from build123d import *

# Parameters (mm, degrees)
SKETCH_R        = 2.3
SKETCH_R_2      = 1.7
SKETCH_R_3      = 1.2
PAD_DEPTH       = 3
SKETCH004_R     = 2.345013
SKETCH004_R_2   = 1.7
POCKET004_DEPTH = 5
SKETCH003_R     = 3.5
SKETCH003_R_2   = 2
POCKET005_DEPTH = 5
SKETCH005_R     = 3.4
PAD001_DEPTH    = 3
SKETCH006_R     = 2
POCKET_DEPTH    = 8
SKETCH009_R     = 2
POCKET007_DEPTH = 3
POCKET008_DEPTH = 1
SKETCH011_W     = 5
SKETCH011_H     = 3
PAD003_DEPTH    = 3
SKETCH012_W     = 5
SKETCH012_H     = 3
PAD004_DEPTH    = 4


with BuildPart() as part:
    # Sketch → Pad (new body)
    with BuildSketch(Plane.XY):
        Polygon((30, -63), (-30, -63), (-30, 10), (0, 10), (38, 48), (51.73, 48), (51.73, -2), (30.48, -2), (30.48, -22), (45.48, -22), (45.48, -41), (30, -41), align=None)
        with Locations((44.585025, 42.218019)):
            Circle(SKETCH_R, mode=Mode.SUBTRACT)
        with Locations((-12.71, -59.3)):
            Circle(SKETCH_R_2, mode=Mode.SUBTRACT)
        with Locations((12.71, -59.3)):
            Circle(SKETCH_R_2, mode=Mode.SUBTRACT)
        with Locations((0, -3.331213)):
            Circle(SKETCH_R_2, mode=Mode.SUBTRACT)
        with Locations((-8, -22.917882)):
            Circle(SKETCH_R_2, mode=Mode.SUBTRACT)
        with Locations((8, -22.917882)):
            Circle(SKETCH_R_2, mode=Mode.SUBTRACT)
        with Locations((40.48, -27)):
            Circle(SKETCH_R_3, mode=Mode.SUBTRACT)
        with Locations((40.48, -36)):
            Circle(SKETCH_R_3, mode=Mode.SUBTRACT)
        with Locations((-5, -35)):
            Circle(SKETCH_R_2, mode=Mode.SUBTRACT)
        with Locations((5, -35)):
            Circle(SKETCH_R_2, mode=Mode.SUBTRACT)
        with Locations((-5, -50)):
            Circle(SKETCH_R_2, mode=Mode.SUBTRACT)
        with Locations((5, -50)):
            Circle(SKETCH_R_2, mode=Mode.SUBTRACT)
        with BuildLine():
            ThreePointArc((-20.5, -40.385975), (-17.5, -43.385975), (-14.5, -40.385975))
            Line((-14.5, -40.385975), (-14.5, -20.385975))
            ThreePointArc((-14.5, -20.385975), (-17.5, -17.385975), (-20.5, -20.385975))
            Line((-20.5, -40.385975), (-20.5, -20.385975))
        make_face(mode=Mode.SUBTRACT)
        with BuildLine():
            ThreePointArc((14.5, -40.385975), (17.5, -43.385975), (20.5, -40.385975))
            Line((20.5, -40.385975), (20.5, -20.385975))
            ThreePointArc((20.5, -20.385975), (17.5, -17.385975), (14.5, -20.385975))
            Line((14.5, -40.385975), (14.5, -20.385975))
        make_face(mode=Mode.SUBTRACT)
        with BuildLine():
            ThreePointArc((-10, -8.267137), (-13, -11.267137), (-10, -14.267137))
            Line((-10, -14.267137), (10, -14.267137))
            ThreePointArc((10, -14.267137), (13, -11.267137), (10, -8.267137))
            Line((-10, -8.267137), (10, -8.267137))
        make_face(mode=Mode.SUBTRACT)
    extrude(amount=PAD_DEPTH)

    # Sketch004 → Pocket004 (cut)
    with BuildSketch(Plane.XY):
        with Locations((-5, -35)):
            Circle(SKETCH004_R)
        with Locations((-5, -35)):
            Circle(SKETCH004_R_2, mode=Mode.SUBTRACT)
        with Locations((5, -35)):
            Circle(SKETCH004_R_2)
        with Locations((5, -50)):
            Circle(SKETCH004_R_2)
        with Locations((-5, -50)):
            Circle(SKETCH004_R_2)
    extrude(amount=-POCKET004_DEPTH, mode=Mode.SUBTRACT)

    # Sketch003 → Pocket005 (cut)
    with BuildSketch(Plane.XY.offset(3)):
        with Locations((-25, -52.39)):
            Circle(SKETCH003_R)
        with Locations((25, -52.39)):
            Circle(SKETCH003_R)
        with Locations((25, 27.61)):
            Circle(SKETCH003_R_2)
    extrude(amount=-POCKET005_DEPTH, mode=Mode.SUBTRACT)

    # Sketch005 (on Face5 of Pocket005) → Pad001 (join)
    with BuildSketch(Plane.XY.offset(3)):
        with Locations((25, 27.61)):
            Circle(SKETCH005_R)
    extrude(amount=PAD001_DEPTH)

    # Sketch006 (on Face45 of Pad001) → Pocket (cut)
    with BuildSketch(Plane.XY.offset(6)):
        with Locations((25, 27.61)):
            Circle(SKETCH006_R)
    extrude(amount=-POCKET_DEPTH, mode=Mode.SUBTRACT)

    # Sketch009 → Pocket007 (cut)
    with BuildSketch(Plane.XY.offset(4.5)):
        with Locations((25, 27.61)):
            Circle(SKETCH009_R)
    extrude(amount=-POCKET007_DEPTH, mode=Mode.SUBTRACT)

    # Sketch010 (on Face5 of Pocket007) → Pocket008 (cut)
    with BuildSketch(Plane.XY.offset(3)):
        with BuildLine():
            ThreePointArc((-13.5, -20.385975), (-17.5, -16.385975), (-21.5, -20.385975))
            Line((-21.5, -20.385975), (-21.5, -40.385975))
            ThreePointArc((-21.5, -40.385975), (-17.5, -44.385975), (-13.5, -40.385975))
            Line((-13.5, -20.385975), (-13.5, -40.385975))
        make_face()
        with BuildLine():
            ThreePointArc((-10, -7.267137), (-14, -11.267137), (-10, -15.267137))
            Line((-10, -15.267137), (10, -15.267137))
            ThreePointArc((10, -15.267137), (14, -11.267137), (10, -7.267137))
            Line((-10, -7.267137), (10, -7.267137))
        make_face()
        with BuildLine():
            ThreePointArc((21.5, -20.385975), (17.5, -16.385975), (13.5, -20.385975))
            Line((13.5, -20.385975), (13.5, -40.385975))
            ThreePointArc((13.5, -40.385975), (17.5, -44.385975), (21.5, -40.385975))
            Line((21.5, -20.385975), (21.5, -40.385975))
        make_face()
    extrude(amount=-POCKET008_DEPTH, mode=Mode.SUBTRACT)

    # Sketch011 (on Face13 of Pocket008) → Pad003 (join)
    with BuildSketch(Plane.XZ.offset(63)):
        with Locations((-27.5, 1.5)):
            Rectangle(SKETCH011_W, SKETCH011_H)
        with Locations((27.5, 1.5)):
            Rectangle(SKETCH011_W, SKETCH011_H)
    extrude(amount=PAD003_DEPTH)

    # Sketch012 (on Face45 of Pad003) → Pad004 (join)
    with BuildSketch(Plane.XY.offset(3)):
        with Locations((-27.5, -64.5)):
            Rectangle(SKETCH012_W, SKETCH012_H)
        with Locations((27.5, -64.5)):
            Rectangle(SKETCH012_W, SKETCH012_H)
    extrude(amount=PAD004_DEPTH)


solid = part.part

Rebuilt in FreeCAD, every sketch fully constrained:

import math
import FreeCAD as App
import Part
import Sketcher
from FreeCAD import Vector
Q = App.Units.Quantity

doc = App.newDocument("Part")
body = doc.addObject("PartDesign::Body", "Body")

# Sketch on XY plane
sketch1 = body.newObject("Sketcher::SketchObject", "Sketch")
sketch1.AttachmentSupport = (doc.getObject("XY_Plane"), [""])
sketch1.MapMode = "FlatFace"
sketch1.addGeometry([
    Part.LineSegment(Vector(-30, -63, 0), Vector(30, -63, 0)),  # 0
    Part.LineSegment(Vector(30, -63, 0), Vector(30, -41, 0)),  # 1
    Part.LineSegment(Vector(30, -41, 0), Vector(45.5, -41, 0)),  # 2
    Part.LineSegment(Vector(45.5, -41, 0), Vector(45.5, -22, 0)),  # 3
    Part.LineSegment(Vector(45.5, -22, 0), Vector(30.5, -22, 0)),  # 4
    Part.LineSegment(Vector(30.5, -22, 0), Vector(30.5, -2, 0)),  # 5
    Part.LineSegment(Vector(30.5, -2, 0), Vector(51.7, -2, 0)),  # 6
    Part.LineSegment(Vector(51.7, -2, 0), Vector(51.7, 48, 0)),  # 7
    Part.LineSegment(Vector(51.7, 48, 0), Vector(38, 48, 0)),  # 8
    Part.LineSegment(Vector(38, 48, 0), Vector(0, 10, 0)),  # 9
    Part.LineSegment(Vector(0, 10, 0), Vector(-30, 10, 0)),  # 10
    Part.LineSegment(Vector(-30, 10, 0), Vector(-30, -63, 0)),  # 11
    Part.Circle(Vector(40.5, -36, 0), Vector(0, 0, 1), 1.2),  # 12
    Part.Circle(Vector(40.5, -27, 0), Vector(0, 0, 1), 1.2),  # 13
    Part.LineSegment(Vector(14.5, -40.4, 0), Vector(14.5, -20.4, 0)),  # 14
    Part.ArcOfCircle(Part.Circle(Vector(17.5, -20.4, 0), Vector(0, 0, 1), 3), math.radians(0), math.radians(180)),  # 15
    Part.LineSegment(Vector(20.5, -20.4, 0), Vector(20.5, -40.4, 0)),  # 16
    Part.ArcOfCircle(Part.Circle(Vector(17.5, -40.4, 0), Vector(0, 0, 1), 3), math.radians(180), math.radians(360)),  # 17
    Part.Circle(Vector(12.7, -59.3, 0), Vector(0, 0, 1), 1.7),  # 18
    Part.Circle(Vector(5, -50, 0), Vector(0, 0, 1), 1.7),  # 19
    Part.Circle(Vector(5, -35, 0), Vector(0, 0, 1), 1.7),  # 20
    Part.Circle(Vector(-5, -50, 0), Vector(0, 0, 1), 1.7),  # 21
    Part.Circle(Vector(-12.7, -59.3, 0), Vector(0, 0, 1), 1.7),  # 22
    Part.Circle(Vector(-5, -35, 0), Vector(0, 0, 1), 1.7),  # 23
    Part.Circle(Vector(8, -22.9, 0), Vector(0, 0, 1), 1.7),  # 24
    Part.LineSegment(Vector(-10, -8.3, 0), Vector(10, -8.3, 0)),  # 25
    Part.ArcOfCircle(Part.Circle(Vector(10, -11.3, 0), Vector(0, 0, 1), 3), math.radians(-90), math.radians(90)),  # 26
    Part.LineSegment(Vector(10, -14.3, 0), Vector(-10, -14.3, 0)),  # 27
    Part.ArcOfCircle(Part.Circle(Vector(-10, -11.3, 0), Vector(0, 0, 1), 3), math.radians(90), math.radians(270)),  # 28
    Part.Circle(Vector(-8, -22.9, 0), Vector(0, 0, 1), 1.7),  # 29
    Part.LineSegment(Vector(-20.5, -40.4, 0), Vector(-20.5, -20.4, 0)),  # 30
    Part.ArcOfCircle(Part.Circle(Vector(-17.5, -20.4, 0), Vector(0, 0, 1), 3), math.radians(0), math.radians(180)),  # 31
    Part.LineSegment(Vector(-14.5, -20.4, 0), Vector(-14.5, -40.4, 0)),  # 32
    Part.ArcOfCircle(Part.Circle(Vector(-17.5, -40.4, 0), Vector(0, 0, 1), 3), math.radians(180), math.radians(360)),  # 33
    Part.Circle(Vector(44.6, 42.2, 0), Vector(0, 0, 1), 2.3),  # 34
    Part.Circle(Vector(0, -3.3, 0), Vector(0, 0, 1), 1.7),  # 35
], False)
sketch1.addConstraint([
    Sketcher.Constraint("Coincident", 0, 2, 1, 1),
    Sketcher.Constraint("Coincident", 1, 2, 2, 1),
    Sketcher.Constraint("Coincident", 2, 2, 3, 1),
    Sketcher.Constraint("Coincident", 3, 2, 4, 1),
    Sketcher.Constraint("Coincident", 4, 2, 5, 1),
    Sketcher.Constraint("Coincident", 5, 2, 6, 1),
    Sketcher.Constraint("Coincident", 6, 2, 7, 1),
    Sketcher.Constraint("Coincident", 7, 2, 8, 1),
    Sketcher.Constraint("Coincident", 8, 2, 9, 1),
    Sketcher.Constraint("Coincident", 9, 2, 10, 1),
    Sketcher.Constraint("Coincident", 10, 2, 11, 1),
    Sketcher.Constraint("Coincident", 11, 2, 0, 1),
    Sketcher.Constraint("Tangent", 14, 2, 15, 2),
    Sketcher.Constraint("Tangent", 15, 1, 16, 1),
    Sketcher.Constraint("Tangent", 16, 2, 17, 2),
    Sketcher.Constraint("Tangent", 17, 1, 14, 1),
    Sketcher.Constraint("Tangent", 25, 2, 26, 2),
    Sketcher.Constraint("Tangent", 26, 1, 27, 1),
    Sketcher.Constraint("Tangent", 27, 2, 28, 2),
    Sketcher.Constraint("Tangent", 28, 1, 25, 1),
    Sketcher.Constraint("Tangent", 30, 2, 31, 2),
    Sketcher.Constraint("Tangent", 31, 1, 32, 1),
    Sketcher.Constraint("Tangent", 32, 2, 33, 2),
    Sketcher.Constraint("Tangent", 33, 1, 30, 1),
    Sketcher.Constraint("Horizontal", 0),
    Sketcher.Constraint("Vertical", 1),
    Sketcher.Constraint("Horizontal", 2),
    Sketcher.Constraint("Vertical", 3),
    Sketcher.Constraint("Horizontal", 4),
    Sketcher.Constraint("Vertical", 5),
    Sketcher.Constraint("Horizontal", 6),
    Sketcher.Constraint("Vertical", 7),
    Sketcher.Constraint("Horizontal", 8),
    Sketcher.Constraint("Horizontal", 10),
    Sketcher.Constraint("Vertical", 11),
    Sketcher.Constraint("Vertical", 14),
    Sketcher.Constraint("Vertical", 16),
    Sketcher.Constraint("Horizontal", 25),
    Sketcher.Constraint("Horizontal", 27),
    Sketcher.Constraint("Vertical", 30),
    Sketcher.Constraint("Vertical", 32),
    Sketcher.Constraint("Equal", 12, 13),
    Sketcher.Constraint("Equal", 18, 19),
    Sketcher.Constraint("Equal", 19, 20),
    Sketcher.Constraint("Equal", 20, 21),
    Sketcher.Constraint("Equal", 21, 22),
    Sketcher.Constraint("Equal", 22, 23),
    Sketcher.Constraint("Equal", 23, 24),
    Sketcher.Constraint("Equal", 17, 26),
    Sketcher.Constraint("Equal", 24, 29),
    Sketcher.Constraint("Equal", 28, 31),
    Sketcher.Constraint("Equal", 29, 35),
    Sketcher.Constraint("Symmetric", 19, 3, 21, 3, -2),
    Sketcher.Constraint("Symmetric", 18, 3, 22, 3, -2),
    Sketcher.Constraint("Symmetric", 20, 3, 23, 3, -2),
    Sketcher.Constraint("Symmetric", 24, 3, 29, 3, -2),
    Sketcher.Constraint("Symmetric", 15, 3, 31, 3, -2),
    Sketcher.Constraint("PointOnObject", 35, 3, -2),
    Sketcher.Constraint("PointOnObject", 9, 2, -2),
    Sketcher.Constraint("Horizontal", 17, 3, 33, 3),
    Sketcher.Constraint("Vertical", 12, 3, 13, 3),
    Sketcher.Constraint("Vertical", 19, 3, 20, 3),
    Sketcher.Constraint("Equal", 27, 5),
    Sketcher.Constraint("Equal", 5, 14),
    Sketcher.Constraint("Radius", 15, 3.0),
    Sketcher.Constraint("Diameter", 12, 2.4),
    Sketcher.Constraint("Diameter", 18, 3.4),
    Sketcher.Constraint("Diameter", 34, 4.6),
    Sketcher.Constraint("DistanceX", 0, 1, 0, 2, 60.0),
    Sketcher.Constraint("DistanceX", 4, 2, 4, 1, 15.0),
    Sketcher.Constraint("DistanceX", 10, 2, 10, 1, 30.0),
    Sketcher.Constraint("DistanceX", 25, 1, 25, 2, 20.0),
    Sketcher.Constraint("DistanceY", 1, 1, 1, 2, 22.0),
    Sketcher.Constraint("DistanceY", 3, 1, 3, 2, 19.0),
    Sketcher.Constraint("DistanceY", 7, 1, 7, 2, 50.0),
    Sketcher.Constraint("DistanceY", 11, 2, 11, 1, 73.0),
    Sketcher.Constraint("Angle", 9, Q("-135 deg")),
    Sketcher.Constraint("DistanceY", 12, 3, -1, 1, 36.0),
    Sketcher.Constraint("DistanceY", 13, 3, -1, 1, 27.0),
    Sketcher.Constraint("DistanceX", -1, 1, 19, 3, 5.0),
    Sketcher.Constraint("DistanceY", 19, 3, -1, 1, 50.0),
    Sketcher.Constraint("DistanceY", 20, 3, -1, 1, 35.0),
    Sketcher.Constraint("DistanceX", -1, 1, 24, 3, 8.0),
    Sketcher.Constraint("DistanceX", -1, 1, 26, 3, 10.0),
    Sketcher.Constraint("DistanceY", 0, 2, -1, 1, 63.0),
    Sketcher.Constraint("DistanceX", 12, 3, 2, 2, 5.0),
    Sketcher.Constraint("DistanceX", 2, 1, 2, 2, 15.48),
    Sketcher.Constraint("DistanceX", 6, 1, 6, 2, 21.25),
    Sketcher.Constraint("DistanceX", -1, 1, 15, 3, 17.5),
    Sketcher.Constraint("DistanceY", 18, 3, -1, 1, 59.3),
    Sketcher.Constraint("DistanceX", -1, 1, 18, 3, 12.71),
    Sketcher.Constraint("DistanceY", 24, 3, 34, 3, 65.135901),
    Sketcher.Constraint("DistanceY", 24, 3, -1, 1, 22.917882),
    Sketcher.Constraint("DistanceY", 17, 3, 26, 3, 29.118838),
    Sketcher.Constraint("DistanceY", 24, 3, 35, 3, 19.586669),
    Sketcher.Constraint("DistanceY", 15, 3, 35, 3, 17.054762),
    Sketcher.Constraint("DistanceX", -1, 1, 34, 3, 44.585025),
])
pad1 = body.newObject("PartDesign::Pad", "Pad")
pad1.Profile = sketch1
pad1.Length = 3

# Sketch on XY plane
sketch2 = body.newObject("Sketcher::SketchObject", "Sketch001")
sketch2.AttachmentSupport = (doc.getObject("XY_Plane"), [""])
sketch2.MapMode = "FlatFace"
sketch2.addGeometry([
    Part.Circle(Vector(-5, -35, 0), Vector(0, 0, 1), 2.3),  # 0
    Part.Circle(Vector(-5, -35, 0), Vector(0, 0, 1), 1.7),  # 1
    Part.Circle(Vector(5, -35, 0), Vector(0, 0, 1), 1.7),  # 2
    Part.Circle(Vector(5, -50, 0), Vector(0, 0, 1), 1.7),  # 3
    Part.Circle(Vector(-5, -50, 0), Vector(0, 0, 1), 1.7),  # 4
], False)
sketch2.addConstraint([
    Sketcher.Constraint("Coincident", 1, 3, 0, 3),
    Sketcher.Constraint("Equal", 1, 2),
    Sketcher.Constraint("Equal", 2, 3),
    Sketcher.Constraint("Equal", 3, 4),
    Sketcher.Constraint("Symmetric", 0, 3, 2, 3, -2),
    Sketcher.Constraint("Symmetric", 3, 3, 4, 3, -2),
    Sketcher.Constraint("Vertical", 2, 3, 3, 3),
    Sketcher.Constraint("Diameter", 1, 3.4),
    Sketcher.Constraint("DistanceX", 0, 3, -1, 1, 5.0),
    Sketcher.Constraint("DistanceY", 0, 3, -1, 1, 35.0),
    Sketcher.Constraint("DistanceY", 3, 3, -1, 1, 50.0),
    Sketcher.Constraint("Diameter", 0, 4.690026),
])
pocket1 = body.newObject("PartDesign::Pocket", "Pocket")
pocket1.Profile = sketch2
pocket1.Length = 5

# Sketch on XY plane
sketch3 = body.newObject("Sketcher::SketchObject", "Sketch002")
sketch3.AttachmentSupport = (doc.getObject("XY_Plane"), [""])
sketch3.MapMode = "FlatFace"
sketch3.AttachmentOffset = App.Placement(Vector(0, 0, 3), App.Rotation())
sketch3.addGeometry([
    Part.Circle(Vector(-25, -52.4, 0), Vector(0, 0, 1), 3.5),
    Part.Circle(Vector(25, -52.4, 0), Vector(0, 0, 1), 3.5),
    Part.Circle(Vector(25, 27.6, 0), Vector(0, 0, 1), 2),
], False)
sketch3.addConstraint([
    Sketcher.Constraint("Equal", 0, 1),
    Sketcher.Constraint("Symmetric", 0, 3, 1, 3, -2),
    Sketcher.Constraint("Vertical", 1, 3, 2, 3),
    Sketcher.Constraint("Diameter", 0, 7.0),
    Sketcher.Constraint("Diameter", 2, 4.0),
    Sketcher.Constraint("DistanceX", 0, 3, -1, 1, 25.0),
    Sketcher.Constraint("DistanceY", 1, 3, 2, 3, 80.0),
    Sketcher.Constraint("DistanceY", 0, 3, -1, 1, 52.39),
])
pocket2 = body.newObject("PartDesign::Pocket", "Pocket001")
pocket2.Profile = sketch3
pocket2.Length = 5

# Sketch on XY plane
sketch4 = body.newObject("Sketcher::SketchObject", "Sketch003")
sketch4.AttachmentSupport = (doc.getObject("XY_Plane"), [""])
sketch4.MapMode = "FlatFace"
sketch4.AttachmentOffset = App.Placement(Vector(0, 0, 3), App.Rotation())
sketch4.addGeometry(Part.Circle(Vector(25, 27.6, 0), Vector(0, 0, 1), 3.4), False)
sketch4.addConstraint([
    Sketcher.Constraint("Diameter", 0, 6.8),
    Sketcher.Constraint("DistanceX", -1, 1, 0, 3, 25.0),
    Sketcher.Constraint("DistanceY", -1, 1, 0, 3, 27.61),
])
pad2 = body.newObject("PartDesign::Pad", "Pad001")
pad2.Profile = sketch4
pad2.Length = 3

# Sketch on XY plane
sketch5 = body.newObject("Sketcher::SketchObject", "Sketch004")
sketch5.AttachmentSupport = (doc.getObject("XY_Plane"), [""])
sketch5.MapMode = "FlatFace"
sketch5.AttachmentOffset = App.Placement(Vector(0, 0, 6), App.Rotation())
sketch5.addGeometry(Part.Circle(Vector(25, 27.6, 0), Vector(0, 0, 1), 2), False)
sketch5.addConstraint([
    Sketcher.Constraint("Diameter", 0, 4.0),
    Sketcher.Constraint("DistanceX", -1, 1, 0, 3, 25.0),
    Sketcher.Constraint("DistanceY", -1, 1, 0, 3, 27.61),
])
pocket3 = body.newObject("PartDesign::Pocket", "Pocket002")
pocket3.Profile = sketch5
pocket3.Length = 8

# Sketch on XY plane
sketch6 = body.newObject("Sketcher::SketchObject", "Sketch005")
sketch6.AttachmentSupport = (doc.getObject("XY_Plane"), [""])
sketch6.MapMode = "FlatFace"
sketch6.AttachmentOffset = App.Placement(Vector(0, 0, 4.5), App.Rotation())
sketch6.addGeometry(Part.Circle(Vector(25, 27.6, 0), Vector(0, 0, 1), 2), False)
sketch6.addConstraint([
    Sketcher.Constraint("Diameter", 0, 4.0),
    Sketcher.Constraint("DistanceX", -1, 1, 0, 3, 25.0),
    Sketcher.Constraint("DistanceY", -1, 1, 0, 3, 27.61),
])
pocket4 = body.newObject("PartDesign::Pocket", "Pocket003")
pocket4.Profile = sketch6
pocket4.Length = 3

# Sketch on XY plane
sketch7 = body.newObject("Sketcher::SketchObject", "Sketch006")
sketch7.AttachmentSupport = (doc.getObject("XY_Plane"), [""])
sketch7.MapMode = "FlatFace"
sketch7.AttachmentOffset = App.Placement(Vector(0, 0, 3), App.Rotation())
sketch7.addGeometry([
    Part.ArcOfCircle(Part.Circle(Vector(-17.5, -20.4, 0), Vector(0, 0, 1), 4), math.radians(0), math.radians(180)),  # 0
    Part.LineSegment(Vector(-21.5, -20.4, 0), Vector(-21.5, -40.4, 0)),  # 1
    Part.ArcOfCircle(Part.Circle(Vector(-17.5, -40.4, 0), Vector(0, 0, 1), 4), math.radians(180), math.radians(360)),  # 2
    Part.LineSegment(Vector(-13.5, -40.4, 0), Vector(-13.5, -20.4, 0)),  # 3
    Part.ArcOfCircle(Part.Circle(Vector(-10, -11.3, 0), Vector(0, 0, 1), 4), math.radians(90), math.radians(270)),  # 4
    Part.LineSegment(Vector(-10, -15.3, 0), Vector(10, -15.3, 0)),  # 5
    Part.ArcOfCircle(Part.Circle(Vector(10, -11.3, 0), Vector(0, 0, 1), 4), math.radians(-90), math.radians(90)),  # 6
    Part.LineSegment(Vector(10, -7.3, 0), Vector(-10, -7.3, 0)),  # 7
    Part.ArcOfCircle(Part.Circle(Vector(17.5, -20.4, 0), Vector(0, 0, 1), 4), math.radians(0), math.radians(180)),  # 8
    Part.LineSegment(Vector(13.5, -20.4, 0), Vector(13.5, -40.4, 0)),  # 9
    Part.ArcOfCircle(Part.Circle(Vector(17.5, -40.4, 0), Vector(0, 0, 1), 4), math.radians(180), math.radians(360)),  # 10
    Part.LineSegment(Vector(21.5, -40.4, 0), Vector(21.5, -20.4, 0)),  # 11
], False)
sketch7.addConstraint([
    Sketcher.Constraint("Tangent", 0, 2, 1, 1),
    Sketcher.Constraint("Tangent", 1, 2, 2, 1),
    Sketcher.Constraint("Tangent", 2, 2, 3, 1),
    Sketcher.Constraint("Tangent", 3, 2, 0, 1),
    Sketcher.Constraint("Tangent", 4, 2, 5, 1),
    Sketcher.Constraint("Tangent", 5, 2, 6, 1),
    Sketcher.Constraint("Tangent", 6, 2, 7, 1),
    Sketcher.Constraint("Tangent", 7, 2, 4, 1),
    Sketcher.Constraint("Tangent", 8, 2, 9, 1),
    Sketcher.Constraint("Tangent", 9, 2, 10, 1),
    Sketcher.Constraint("Tangent", 10, 2, 11, 1),
    Sketcher.Constraint("Tangent", 11, 2, 8, 1),
    Sketcher.Constraint("Vertical", 1),
    Sketcher.Constraint("Vertical", 3),
    Sketcher.Constraint("Horizontal", 5),
    Sketcher.Constraint("Horizontal", 7),
    Sketcher.Constraint("Vertical", 9),
    Sketcher.Constraint("Vertical", 11),
    Sketcher.Constraint("Equal", 2, 4),
    Sketcher.Constraint("Equal", 6, 8),
    Sketcher.Constraint("Symmetric", 0, 3, 8, 3, -2),
    Sketcher.Constraint("Horizontal", 2, 3, 10, 3),
    Sketcher.Constraint("Equal", 7, 1),
    Sketcher.Constraint("Radius", 0, 4.0),
    Sketcher.Constraint("DistanceX", 5, 1, 5, 2, 20.0),
    Sketcher.Constraint("DistanceX", 4, 3, -1, 1, 10.0),
    Sketcher.Constraint("DistanceX", 0, 3, 8, 3, 35.0),
    Sketcher.Constraint("DistanceY", 2, 3, 4, 3, 29.118838),
    Sketcher.Constraint("DistanceY", 0, 3, -1, 1, 20.385975),
])
pocket5 = body.newObject("PartDesign::Pocket", "Pocket004")
pocket5.Profile = sketch7
pocket5.Length = 1

# Sketch on XZ plane
sketch8 = body.newObject("Sketcher::SketchObject", "Sketch007")
sketch8.AttachmentSupport = (doc.getObject("XZ_Plane"), [""])
sketch8.MapMode = "FlatFace"
sketch8.AttachmentOffset = App.Placement(Vector(0, 0, 63), App.Rotation())
sketch8.addGeometry([
    Part.LineSegment(Vector(-30, 3, 0), Vector(-30, 0, 0)),  # 0
    Part.LineSegment(Vector(-30, 0, 0), Vector(-25, 0, 0)),  # 1
    Part.LineSegment(Vector(-25, 0, 0), Vector(-25, 3, 0)),  # 2
    Part.LineSegment(Vector(-25, 3, 0), Vector(-30, 3, 0)),  # 3
    Part.LineSegment(Vector(25, 3, 0), Vector(25, 0, 0)),  # 4
    Part.LineSegment(Vector(25, 0, 0), Vector(30, 0, 0)),  # 5
    Part.LineSegment(Vector(30, 0, 0), Vector(30, 3, 0)),  # 6
    Part.LineSegment(Vector(30, 3, 0), Vector(25, 3, 0)),  # 7
], False)
sketch8.addConstraint([
    Sketcher.Constraint("Coincident", 0, 2, 1, 1),
    Sketcher.Constraint("Coincident", 1, 2, 2, 1),
    Sketcher.Constraint("Coincident", 2, 2, 3, 1),
    Sketcher.Constraint("Coincident", 3, 2, 0, 1),
    Sketcher.Constraint("Coincident", 4, 2, 5, 1),
    Sketcher.Constraint("Coincident", 5, 2, 6, 1),
    Sketcher.Constraint("Coincident", 6, 2, 7, 1),
    Sketcher.Constraint("Coincident", 7, 2, 4, 1),
    Sketcher.Constraint("Vertical", 0),
    Sketcher.Constraint("Horizontal", 1),
    Sketcher.Constraint("Vertical", 2),
    Sketcher.Constraint("Horizontal", 3),
    Sketcher.Constraint("Vertical", 4),
    Sketcher.Constraint("Horizontal", 5),
    Sketcher.Constraint("Vertical", 6),
    Sketcher.Constraint("Horizontal", 7),
    Sketcher.Constraint("Symmetric", 1, 2, 4, 2, -1, 1),
    Sketcher.Constraint("Symmetric", 0, 2, 5, 2, -2),
    Sketcher.Constraint("Horizontal", 3, 2, 6, 2),
    Sketcher.Constraint("DistanceX", 1, 1, 1, 2, 5.0),
    Sketcher.Constraint("DistanceY", 0, 2, 0, 1, 3.0),
    Sketcher.Constraint("DistanceX", 0, 2, -1, 1, 30.0),
])
pad3 = body.newObject("PartDesign::Pad", "Pad002")
pad3.Profile = sketch8
pad3.Length = 3

# Sketch on XY plane
sketch9 = body.newObject("Sketcher::SketchObject", "Sketch008")
sketch9.AttachmentSupport = (doc.getObject("XY_Plane"), [""])
sketch9.MapMode = "FlatFace"
sketch9.AttachmentOffset = App.Placement(Vector(0, 0, 3), App.Rotation())
sketch9.addGeometry([
    Part.LineSegment(Vector(-30, -63, 0), Vector(-30, -66, 0)),  # 0
    Part.LineSegment(Vector(-30, -66, 0), Vector(-25, -66, 0)),  # 1
    Part.LineSegment(Vector(-25, -66, 0), Vector(-25, -63, 0)),  # 2
    Part.LineSegment(Vector(-25, -63, 0), Vector(-30, -63, 0)),  # 3
    Part.LineSegment(Vector(25, -63, 0), Vector(25, -66, 0)),  # 4
    Part.LineSegment(Vector(25, -66, 0), Vector(30, -66, 0)),  # 5
    Part.LineSegment(Vector(30, -66, 0), Vector(30, -63, 0)),  # 6
    Part.LineSegment(Vector(30, -63, 0), Vector(25, -63, 0)),  # 7
], False)
sketch9.addConstraint([
    Sketcher.Constraint("Coincident", 0, 2, 1, 1),
    Sketcher.Constraint("Coincident", 1, 2, 2, 1),
    Sketcher.Constraint("Coincident", 2, 2, 3, 1),
    Sketcher.Constraint("Coincident", 3, 2, 0, 1),
    Sketcher.Constraint("Coincident", 4, 2, 5, 1),
    Sketcher.Constraint("Coincident", 5, 2, 6, 1),
    Sketcher.Constraint("Coincident", 6, 2, 7, 1),
    Sketcher.Constraint("Coincident", 7, 2, 4, 1),
    Sketcher.Constraint("Vertical", 0),
    Sketcher.Constraint("Horizontal", 1),
    Sketcher.Constraint("Vertical", 2),
    Sketcher.Constraint("Horizontal", 3),
    Sketcher.Constraint("Vertical", 4),
    Sketcher.Constraint("Horizontal", 5),
    Sketcher.Constraint("Vertical", 6),
    Sketcher.Constraint("Horizontal", 7),
    Sketcher.Constraint("Symmetric", 1, 2, 4, 2, -2),
    Sketcher.Constraint("Symmetric", 3, 2, 6, 2, -2),
    Sketcher.Constraint("DistanceX", 1, 1, 1, 2, 5.0),
    Sketcher.Constraint("DistanceY", 0, 2, 0, 1, 3.0),
    Sketcher.Constraint("DistanceX", 0, 2, -1, 1, 30.0),
    Sketcher.Constraint("DistanceY", 0, 2, -1, 1, 66.0),
])
pad4 = body.newObject("PartDesign::Pad", "Pad003")
pad4.Profile = sketch9
pad4.Length = 4

doc.recompute()
